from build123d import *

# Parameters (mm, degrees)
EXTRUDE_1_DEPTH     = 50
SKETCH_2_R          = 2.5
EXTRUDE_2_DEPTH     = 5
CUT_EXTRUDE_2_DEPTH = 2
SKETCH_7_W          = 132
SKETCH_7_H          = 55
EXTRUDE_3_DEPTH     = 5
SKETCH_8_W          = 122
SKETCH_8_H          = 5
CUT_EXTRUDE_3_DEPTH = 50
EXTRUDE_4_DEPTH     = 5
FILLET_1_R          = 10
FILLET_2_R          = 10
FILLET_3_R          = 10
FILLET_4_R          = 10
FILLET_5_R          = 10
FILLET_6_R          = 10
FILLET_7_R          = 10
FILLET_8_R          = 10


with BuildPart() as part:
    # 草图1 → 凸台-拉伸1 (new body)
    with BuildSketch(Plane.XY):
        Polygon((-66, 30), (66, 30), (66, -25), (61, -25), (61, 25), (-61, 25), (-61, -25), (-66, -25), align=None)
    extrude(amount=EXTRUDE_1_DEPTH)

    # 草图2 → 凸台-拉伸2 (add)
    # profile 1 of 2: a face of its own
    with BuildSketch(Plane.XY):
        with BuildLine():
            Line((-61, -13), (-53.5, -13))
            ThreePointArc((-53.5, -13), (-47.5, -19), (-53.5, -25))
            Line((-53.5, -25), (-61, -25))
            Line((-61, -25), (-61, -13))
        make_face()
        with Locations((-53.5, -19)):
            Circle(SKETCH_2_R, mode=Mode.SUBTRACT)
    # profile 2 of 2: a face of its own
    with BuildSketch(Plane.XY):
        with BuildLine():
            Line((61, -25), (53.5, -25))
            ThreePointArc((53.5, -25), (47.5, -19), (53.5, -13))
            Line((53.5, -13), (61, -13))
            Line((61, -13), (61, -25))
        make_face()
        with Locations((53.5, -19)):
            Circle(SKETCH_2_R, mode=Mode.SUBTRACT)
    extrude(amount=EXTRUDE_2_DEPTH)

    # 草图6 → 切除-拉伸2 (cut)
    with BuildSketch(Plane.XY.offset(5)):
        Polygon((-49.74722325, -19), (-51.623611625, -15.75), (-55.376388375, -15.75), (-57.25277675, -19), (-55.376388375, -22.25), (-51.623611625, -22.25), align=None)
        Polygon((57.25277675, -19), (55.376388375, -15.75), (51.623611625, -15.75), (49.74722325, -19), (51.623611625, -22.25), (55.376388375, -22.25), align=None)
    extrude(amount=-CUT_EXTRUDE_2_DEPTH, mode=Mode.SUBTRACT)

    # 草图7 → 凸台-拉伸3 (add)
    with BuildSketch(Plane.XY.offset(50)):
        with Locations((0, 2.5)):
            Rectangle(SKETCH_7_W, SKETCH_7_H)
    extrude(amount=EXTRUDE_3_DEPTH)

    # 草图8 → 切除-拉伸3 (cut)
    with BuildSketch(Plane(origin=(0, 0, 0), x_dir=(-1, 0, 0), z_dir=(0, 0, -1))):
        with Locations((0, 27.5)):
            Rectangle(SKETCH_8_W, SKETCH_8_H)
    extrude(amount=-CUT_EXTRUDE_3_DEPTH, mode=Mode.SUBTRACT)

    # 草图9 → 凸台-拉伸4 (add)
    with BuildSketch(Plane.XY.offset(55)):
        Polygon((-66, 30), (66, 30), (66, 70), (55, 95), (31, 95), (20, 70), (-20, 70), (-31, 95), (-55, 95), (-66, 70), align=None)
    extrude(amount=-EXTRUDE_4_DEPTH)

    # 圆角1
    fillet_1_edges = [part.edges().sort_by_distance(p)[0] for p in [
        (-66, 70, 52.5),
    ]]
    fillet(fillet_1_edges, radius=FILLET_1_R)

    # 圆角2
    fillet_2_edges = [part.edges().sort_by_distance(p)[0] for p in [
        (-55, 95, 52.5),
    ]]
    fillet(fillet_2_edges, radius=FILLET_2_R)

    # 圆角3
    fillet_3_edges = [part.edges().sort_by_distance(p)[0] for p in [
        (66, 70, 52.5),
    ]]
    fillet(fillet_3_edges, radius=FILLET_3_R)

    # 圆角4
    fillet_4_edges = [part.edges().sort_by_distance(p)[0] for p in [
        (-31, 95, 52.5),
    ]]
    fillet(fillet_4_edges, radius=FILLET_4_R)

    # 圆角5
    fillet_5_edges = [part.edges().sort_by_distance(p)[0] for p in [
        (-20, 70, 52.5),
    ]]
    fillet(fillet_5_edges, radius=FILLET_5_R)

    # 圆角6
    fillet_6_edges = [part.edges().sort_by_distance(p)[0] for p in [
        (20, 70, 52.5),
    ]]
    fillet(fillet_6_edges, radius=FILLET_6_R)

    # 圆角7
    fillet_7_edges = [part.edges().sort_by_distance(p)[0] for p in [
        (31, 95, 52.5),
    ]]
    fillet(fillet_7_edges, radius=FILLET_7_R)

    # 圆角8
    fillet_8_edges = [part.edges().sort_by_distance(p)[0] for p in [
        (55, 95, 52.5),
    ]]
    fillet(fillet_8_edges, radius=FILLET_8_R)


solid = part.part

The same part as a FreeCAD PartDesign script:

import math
import FreeCAD as App
import Part
import Sketcher
Q = App.Units.Quantity


def edges_at(feature, points):
    """Names of the edges that pass closest to the given points."""
    edges = feature.Shape.Edges
    near = lambda p: min(range(len(edges)), key=lambda i: edges[i].distToShape(Part.Vertex(*p))[0])
    return sorted({f"Edge{near(p) + 1}" for p in points})

doc = App.newDocument("Part")
body = doc.addObject("PartDesign::Body", "Body")

sketch1 = doc.addObject("Sketcher::SketchObject", "Sketch")
body.addObject(sketch1)
sketch1.AttachmentSupport = (doc.XY_Plane, [""])
sketch1.MapMode = "FlatFace"
sketch1.addGeometry([
    Part.LineSegment(App.Vector(66, 30, 0), App.Vector(-66, 30, 0)),
    Part.LineSegment(App.Vector(-66, 30, 0), App.Vector(-66, -25, 0)),
    Part.LineSegment(App.Vector(-66, -25, 0), App.Vector(-61, -25, 0)),
    Part.LineSegment(App.Vector(-61, -25, 0), App.Vector(-61, 25, 0)),
    Part.LineSegment(App.Vector(-61, 25, 0), App.Vector(61, 25, 0)),
    Part.LineSegment(App.Vector(61, 25, 0), App.Vector(61, -25, 0)),
    Part.LineSegment(App.Vector(61, -25, 0), App.Vector(66, -25, 0)),
    Part.LineSegment(App.Vector(66, -25, 0), App.Vector(66, 30, 0)),
], False)
sketch1.addConstraint([
    Sketcher.Constraint("Coincident", 0, 2, 1, 1),
    Sketcher.Constraint("Coincident", 1, 2, 2, 1),
    Sketcher.Constraint("Coincident", 2, 2, 3, 1),
    Sketcher.Constraint("Coincident", 3, 2, 4, 1),
    Sketcher.Constraint("Coincident", 4, 2, 5, 1),
    Sketcher.Constraint("Coincident", 5, 2, 6, 1),
    Sketcher.Constraint("Coincident", 6, 2, 7, 1),
    Sketcher.Constraint("Coincident", 7, 2, 0, 1),
    Sketcher.Constraint("Horizontal", 0),
    Sketcher.Constraint("Vertical", 1),
    Sketcher.Constraint("Horizontal", 2),
    Sketcher.Constraint("Vertical", 3),
    Sketcher.Constraint("Horizontal", 4),
    Sketcher.Constraint("Vertical", 5),
    Sketcher.Constraint("Horizontal", 6),
    Sketcher.Constraint("Vertical", 7),
    Sketcher.Constraint("Symmetric", 2, 2, 4, 2, -1, 1),
    Sketcher.Constraint("Symmetric", 1, 2, 6, 2, -2),
    Sketcher.Constraint("DistanceX", 0, 2, 0, 1, 132.0),
    Sketcher.Constraint("DistanceX", 2, 1, 2, 2, 5.0),
    Sketcher.Constraint("DistanceY", 1, 2, 1, 1, 55.0),
    Sketcher.Constraint("DistanceY", 3, 1, 3, 2, 50.0),
])
pad1 = doc.addObject("PartDesign::Pad", "Pad")
body.addObject(pad1)
pad1.Profile = sketch1
pad1.Length = 50

sketch2 = doc.addObject("Sketcher::SketchObject", "Sketch001")
body.addObject(sketch2)
sketch2.AttachmentSupport = (doc.XY_Plane, [""])
sketch2.MapMode = "FlatFace"
sketch2.addGeometry([
    Part.LineSegment(App.Vector(-53.5, -13, 0), App.Vector(-61, -13, 0)),
    Part.LineSegment(App.Vector(-61, -13, 0), App.Vector(-61, -25, 0)),
    Part.LineSegment(App.Vector(-61, -25, 0), App.Vector(-53.5, -25, 0)),
    Part.ArcOfCircle(Part.Circle(App.Vector(-53.5, -19, 0), App.Vector(0, 0, 1), 6), math.radians(-90), math.radians(90)),
    Part.Circle(App.Vector(-53.5, -19, 0), App.Vector(0, 0, 1), 2.5),
    Part.LineSegment(App.Vector(53.5, -25, 0), App.Vector(61, -25, 0)),
    Part.LineSegment(App.Vector(61, -25, 0), App.Vector(61, -13, 0)),
    Part.LineSegment(App.Vector(61, -13, 0), App.Vector(53.5, -13, 0)),
    Part.ArcOfCircle(Part.Circle(App.Vector(53.5, -19, 0), App.Vector(0, 0, 1), 6), math.radians(90), math.radians(270)),
    Part.Circle(App.Vector(53.5, -19, 0), App.Vector(0, 0, 1), 2.5),
], False)
sketch2.addConstraint([
    Sketcher.Constraint("Coincident", 0, 2, 1, 1),
    Sketcher.Constraint("Coincident", 1, 2, 2, 1),
    Sketcher.Constraint("Tangent", 2, 2, 3, 1),
    Sketcher.Constraint("Tangent", 3, 2, 0, 1),
    Sketcher.Constraint("Coincident", 5, 2, 6, 1),
    Sketcher.Constraint("Coincident", 6, 2, 7, 1),
    Sketcher.Constraint("Tangent", 7, 2, 8, 1),
    Sketcher.Constraint("Tangent", 8, 2, 5, 1),
    Sketcher.Constraint("Horizontal", 0),
    Sketcher.Constraint("Vertical", 1),
    Sketcher.Constraint("Horizontal", 2),
    Sketcher.Constraint("Horizontal", 5),
    Sketcher.Constraint("Vertical", 6),
    Sketcher.Constraint("Horizontal", 7),
    Sketcher.Constraint("Coincident", 4, 3, 3, 3),
    Sketcher.Constraint("Coincident", 9, 3, 8, 3),
    Sketcher.Constraint("Equal", 3, 8),
    Sketcher.Constraint("Equal", 4, 9),
    Sketcher.Constraint("Symmetric", 3, 3, 8, 3, -2),
    Sketcher.Constraint("Equal", 2, 5),
    Sketcher.Constraint("Diameter", 4, 5.0),
    Sketcher.Constraint("Radius", 3, 6.0),
    Sketcher.Constraint("DistanceX", 0, 2, 0, 1, 7.5),
    Sketcher.Constraint("DistanceY", 3, 3, -1, 1, 19.0),
    Sketcher.Constraint("DistanceX", 0, 2, -1, 1, 61.0),
])
pad2 = doc.addObject("PartDesign::Pad", "Pad001")
body.addObject(pad2)
pad2.Profile = sketch2
pad2.Length = 5

sketch3 = doc.addObject("Sketcher::SketchObject", "Sketch002")
body.addObject(sketch3)
sketch3.AttachmentSupport = (doc.XY_Plane, [""])
sketch3.MapMode = "FlatFace"
sketch3.AttachmentOffset = App.Placement(App.Vector(0, 0, 5), App.Rotation())
sketch3.addGeometry([
    Part.LineSegment(App.Vector(-49.7, -19, 0), App.Vector(-51.6, -15.8, 0)),
    Part.LineSegment(App.Vector(-51.6, -15.8, 0), App.Vector(-55.4, -15.8, 0)),
    Part.LineSegment(App.Vector(-55.4, -15.8, 0), App.Vector(-57.3, -19, 0)),
    Part.LineSegment(App.Vector(-57.3, -19, 0), App.Vector(-55.4, -22.2, 0)),
    Part.LineSegment(App.Vector(-55.4, -22.2, 0), App.Vector(-51.6, -22.2, 0)),
    Part.LineSegment(App.Vector(-51.6, -22.2, 0), App.Vector(-49.7, -19, 0)),
    Part.LineSegment(App.Vector(57.3, -19, 0), App.Vector(55.4, -15.8, 0)),
    Part.LineSegment(App.Vector(55.4, -15.8, 0), App.Vector(51.6, -15.8, 0)),
    Part.LineSegment(App.Vector(51.6, -15.8, 0), App.Vector(49.7, -19, 0)),
    Part.LineSegment(App.Vector(49.7, -19, 0), App.Vector(51.6, -22.2, 0)),
    Part.LineSegment(App.Vector(51.6, -22.2, 0), App.Vector(55.4, -22.2, 0)),
    Part.LineSegment(App.Vector(55.4, -22.2, 0), App.Vector(57.3, -19, 0)),
], False)
sketch3.addConstraint([
    Sketcher.Constraint("Coincident", 0, 2, 1, 1),
    Sketcher.Constraint("Coincident", 1, 2, 2, 1),
    Sketcher.Constraint("Coincident", 2, 2, 3, 1),
    Sketcher.Constraint("Coincident", 3, 2, 4, 1),
    Sketcher.Constraint("Coincident", 4, 2, 5, 1),
    Sketcher.Constraint("Coincident", 5, 2, 0, 1),
    Sketcher.Constraint("Coincident", 6, 2, 7, 1),
    Sketcher.Constraint("Coincident", 7, 2, 8, 1),
    Sketcher.Constraint("Coincident", 8, 2, 9, 1),
    Sketcher.Constraint("Coincident", 9, 2, 10, 1),
    Sketcher.Constraint("Coincident", 10, 2, 11, 1),
    Sketcher.Constraint("Coincident", 11, 2, 6, 1),
    Sketcher.Constraint("Horizontal", 1),
    Sketcher.Constraint("Horizontal", 4),
    Sketcher.Constraint("Horizontal", 7),
    Sketcher.Constraint("Horizontal", 10),
    Sketcher.Constraint("Symmetric", 1, 2, 6, 2, -2),
    Sketcher.Constraint("Symmetric", 5, 2, 8, 2, -2),
    Sketcher.Constraint("Symmetric", 4, 2, 9, 2, -2),
    Sketcher.Constraint("Symmetric", 2, 2, 11, 2, -2),
    Sketcher.Constraint("Parallel", 0, 3),
    Sketcher.Constraint("Parallel", 2, 5),
    Sketcher.Constraint("Parallel", 3, 6),
    Sketcher.Constraint("Parallel", 5, 8),
    Sketcher.Constraint("Parallel", 8, 11),
    Sketcher.Constraint("Horizontal", 2, 2, 5, 2),
    Sketcher.Constraint("Vertical", 1, 2, 3, 2),
    Sketcher.Constraint("Angle", 0, Q("120 deg")),
    Sketcher.Constraint("DistanceY", 2, 2, -1, 1, 19.0),
    Sketcher.Constraint("DistanceX", 0, 2, 6, 2, 107.0),
    Sketcher.Constraint("DistanceY", 3, 2, 1, 2, 6.5),
    Sketcher.Constraint("DistanceX", 1, 2, 1, 1, 3.752777),
])
pocket1 = doc.addObject("PartDesign::Pocket", "Pocket")
body.addObject(pocket1)
pocket1.Profile = sketch3
pocket1.Length = 2

sketch4 = doc.addObject("Sketcher::SketchObject", "Sketch003")
body.addObject(sketch4)
sketch4.AttachmentSupport = (doc.XY_Plane, [""])
sketch4.MapMode = "FlatFace"
sketch4.AttachmentOffset = App.Placement(App.Vector(0, 0, 50), App.Rotation())
sketch4.addGeometry([
    Part.LineSegment(App.Vector(-66, 30, 0), App.Vector(-66, -25, 0)),
    Part.LineSegment(App.Vector(-66, -25, 0), App.Vector(66, -25, 0)),
    Part.LineSegment(App.Vector(66, -25, 0), App.Vector(66, 30, 0)),
    Part.LineSegment(App.Vector(66, 30, 0), App.Vector(-66, 30, 0)),
], False)
sketch4.addConstraint([
    Sketcher.Constraint("Coincident", 0, 2, 1, 1),
    Sketcher.Constraint("Coincident", 1, 2, 2, 1),
    Sketcher.Constraint("Coincident", 2, 2, 3, 1),
    Sketcher.Constraint("Coincident", 3, 2, 0, 1),
    Sketcher.Constraint("Vertical", 0),
    Sketcher.Constraint("Horizontal", 1),
    Sketcher.Constraint("Vertical", 2),
    Sketcher.Constraint("Horizontal", 3),
    Sketcher.Constraint("DistanceX", 1, 1, 1, 2, 132.0),
    Sketcher.Constraint("DistanceY", 0, 2, 0, 1, 55.0),
    Sketcher.Constraint("DistanceX", 0, 2, -1, 1, 66.0),
    Sketcher.Constraint("DistanceY", 0, 2, -1, 1, 25.0),
])
pad3 = doc.addObject("PartDesign::Pad", "Pad002")
body.addObject(pad3)
pad3.Profile = sketch4
pad3.Length = 5

sketch5 = doc.addObject("Sketcher::SketchObject", "Sketch004")
body.addObject(sketch5)
sketch5.AttachmentSupport = (doc.XY_Plane, [""])
sketch5.MapMode = "FlatFace"
sketch5.addGeometry([
    Part.LineSegment(App.Vector(61, 30, 0), App.Vector(61, 25, 0)),
    Part.LineSegment(App.Vector(61, 25, 0), App.Vector(-61, 25, 0)),
    Part.LineSegment(App.Vector(-61, 25, 0), App.Vector(-61, 30, 0)),
    Part.LineSegment(App.Vector(-61, 30, 0), App.Vector(61, 30, 0)),
], False)
sketch5.addConstraint([
    Sketcher.Constraint("Coincident", 0, 2, 1, 1),
    Sketcher.Constraint("Coincident", 1, 2, 2, 1),
    Sketcher.Constraint("Coincident", 2, 2, 3, 1),
    Sketcher.Constraint("Coincident", 3, 2, 0, 1),
    Sketcher.Constraint("Vertical", 0),
    Sketcher.Constraint("Horizontal", 1),
    Sketcher.Constraint("Vertical", 2),
    Sketcher.Constraint("Horizontal", 3),
    Sketcher.Constraint("DistanceX", 1, 2, 1, 1, 122.0),
    Sketcher.Constraint("DistanceY", 0, 2, 0, 1, 5.0),
    Sketcher.Constraint("DistanceX", -1, 1, 0, 2, 61.0),
    Sketcher.Constraint("DistanceY", -1, 1, 0, 2, 25.0),
])
pocket2 = doc.addObject("PartDesign::Pocket", "Pocket001")
body.addObject(pocket2)
pocket2.Profile = sketch5
pocket2.Length = 50
pocket2.Reversed = True

sketch6 = doc.addObject("Sketcher::SketchObject", "Sketch005")
body.addObject(sketch6)
sketch6.AttachmentSupport = (doc.XY_Plane, [""])
sketch6.MapMode = "FlatFace"
sketch6.AttachmentOffset = App.Placement(App.Vector(0, 0, 55), App.Rotation())
sketch6.addGeometry([
    Part.LineSegment(App.Vector(-66, 30, 0), App.Vector(66, 30, 0)),
    Part.LineSegment(App.Vector(66, 30, 0), App.Vector(66, 70, 0)),
    Part.LineSegment(App.Vector(66, 70, 0), App.Vector(55, 95, 0)),
    Part.LineSegment(App.Vector(55, 95, 0), App.Vector(31, 95, 0)),
    Part.LineSegment(App.Vector(31, 95, 0), App.Vector(20, 70, 0)),
    Part.LineSegment(App.Vector(20, 70, 0), App.Vector(-20, 70, 0)),
    Part.LineSegment(App.Vector(-20, 70, 0), App.Vector(-31, 95, 0)),
    Part.LineSegment(App.Vector(-31, 95, 0), App.Vector(-55, 95, 0)),
    Part.LineSegment(App.Vector(-55, 95, 0), App.Vector(-66, 70, 0)),
    Part.LineSegment(App.Vector(-66, 70, 0), App.Vector(-66, 30, 0)),
], False)
sketch6.addConstraint([
    Sketcher.Constraint("Coincident", 0, 2, 1, 1),
    Sketcher.Constraint("Coincident", 1, 2, 2, 1),
    Sketcher.Constraint("Coincident", 2, 2, 3, 1),
    Sketcher.Constraint("Coincident", 3, 2, 4, 1),
    Sketcher.Constraint("Coincident", 4, 2, 5, 1),
    Sketcher.Constraint("Coincident", 5, 2, 6, 1),
    Sketcher.Constraint("Coincident", 6, 2, 7, 1),
    Sketcher.Constraint("Coincident", 7, 2, 8, 1),
    Sketcher.Constraint("Coincident", 8, 2, 9, 1),
    Sketcher.Constraint("Coincident", 9, 2, 0, 1),
    Sketcher.Constraint("Horizontal", 0),
    Sketcher.Constraint("Vertical", 1),
    Sketcher.Constraint("Horizontal", 3),
    Sketcher.Constraint("Horizontal", 5),
    Sketcher.Constraint("Horizontal", 7),
    Sketcher.Constraint("Vertical", 9),
    Sketcher.Constraint("Symmetric", 3, 2, 6, 2, -2),
    Sketcher.Constraint("Symmetric", 1, 2, 8, 2, -2),
    Sketcher.Constraint("Parallel", 2, 6),
    Sketcher.Constraint("Parallel", 4, 8),
    Sketcher.Constraint("Horizontal", 1, 2, 4, 2),
    Sketcher.Constraint("Equal", 3, 7),
    Sketcher.Constraint("Equal", 5, 1),
    Sketcher.Constraint("DistanceX", 0, 1, 0, 2, 132.0),
    Sketcher.Constraint("DistanceX", 3, 2, 3, 1, 24.0),
    Sketcher.Constraint("DistanceX", 5, 2, 5, 1, 40.0),
    Sketcher.Constraint("DistanceY", -1, 1, 0, 2, 30.0),
    Sketcher.Constraint("DistanceY", -1, 1, 2, 2, 95.0),
])
pad4 = doc.addObject("PartDesign::Pad", "Pad003")
body.addObject(pad4)
pad4.Profile = sketch6
pad4.Length = 5
pad4.Reversed = True
doc.recompute()

fillet = doc.addObject("PartDesign::Fillet", "Fillet")
body.addObject(fillet)
fillet.Base = (pad4, edges_at(pad4, [(-66, 70, 52.5)]))
fillet.Radius = 10
doc.recompute()

fillet2 = doc.addObject("PartDesign::Fillet", "Fillet001")
body.addObject(fillet2)
fillet2.Base = (fillet, edges_at(fillet, [(-55, 95, 52.5)]))
fillet2.Radius = 10
doc.recompute()

fillet3 = doc.addObject("PartDesign::Fillet", "Fillet002")
body.addObject(fillet3)
fillet3.Base = (fillet2, edges_at(fillet2, [(66, 70, 52.5)]))
fillet3.Radius = 10
doc.recompute()

fillet4 = doc.addObject("PartDesign::Fillet", "Fillet003")
body.addObject(fillet4)
fillet4.Base = (fillet3, edges_at(fillet3, [(-31, 95, 52.5)]))
fillet4.Radius = 10
doc.recompute()

fillet5 = doc.addObject("PartDesign::Fillet", "Fillet004")
body.addObject(fillet5)
fillet5.Base = (fillet4, edges_at(fillet4, [(-20, 70, 52.5)]))
fillet5.Radius = 10
doc.recompute()

fillet6 = doc.addObject("PartDesign::Fillet", "Fillet005")
body.addObject(fillet6)
fillet6.Base = (fillet5, edges_at(fillet5, [(20, 70, 52.5)]))
fillet6.Radius = 10
doc.recompute()

fillet7 = doc.addObject("PartDesign::Fillet", "Fillet006")
body.addObject(fillet7)
fillet7.Base = (fillet6, edges_at(fillet6, [(31, 95, 52.5)]))
fillet7.Radius = 10
doc.recompute()

fillet8 = doc.addObject("PartDesign::Fillet", "Fillet007")
body.addObject(fillet8)
fillet8.Base = (fillet7, edges_at(fillet7, [(55, 95, 52.5)]))
fillet8.Radius = 10

doc.recompute()
